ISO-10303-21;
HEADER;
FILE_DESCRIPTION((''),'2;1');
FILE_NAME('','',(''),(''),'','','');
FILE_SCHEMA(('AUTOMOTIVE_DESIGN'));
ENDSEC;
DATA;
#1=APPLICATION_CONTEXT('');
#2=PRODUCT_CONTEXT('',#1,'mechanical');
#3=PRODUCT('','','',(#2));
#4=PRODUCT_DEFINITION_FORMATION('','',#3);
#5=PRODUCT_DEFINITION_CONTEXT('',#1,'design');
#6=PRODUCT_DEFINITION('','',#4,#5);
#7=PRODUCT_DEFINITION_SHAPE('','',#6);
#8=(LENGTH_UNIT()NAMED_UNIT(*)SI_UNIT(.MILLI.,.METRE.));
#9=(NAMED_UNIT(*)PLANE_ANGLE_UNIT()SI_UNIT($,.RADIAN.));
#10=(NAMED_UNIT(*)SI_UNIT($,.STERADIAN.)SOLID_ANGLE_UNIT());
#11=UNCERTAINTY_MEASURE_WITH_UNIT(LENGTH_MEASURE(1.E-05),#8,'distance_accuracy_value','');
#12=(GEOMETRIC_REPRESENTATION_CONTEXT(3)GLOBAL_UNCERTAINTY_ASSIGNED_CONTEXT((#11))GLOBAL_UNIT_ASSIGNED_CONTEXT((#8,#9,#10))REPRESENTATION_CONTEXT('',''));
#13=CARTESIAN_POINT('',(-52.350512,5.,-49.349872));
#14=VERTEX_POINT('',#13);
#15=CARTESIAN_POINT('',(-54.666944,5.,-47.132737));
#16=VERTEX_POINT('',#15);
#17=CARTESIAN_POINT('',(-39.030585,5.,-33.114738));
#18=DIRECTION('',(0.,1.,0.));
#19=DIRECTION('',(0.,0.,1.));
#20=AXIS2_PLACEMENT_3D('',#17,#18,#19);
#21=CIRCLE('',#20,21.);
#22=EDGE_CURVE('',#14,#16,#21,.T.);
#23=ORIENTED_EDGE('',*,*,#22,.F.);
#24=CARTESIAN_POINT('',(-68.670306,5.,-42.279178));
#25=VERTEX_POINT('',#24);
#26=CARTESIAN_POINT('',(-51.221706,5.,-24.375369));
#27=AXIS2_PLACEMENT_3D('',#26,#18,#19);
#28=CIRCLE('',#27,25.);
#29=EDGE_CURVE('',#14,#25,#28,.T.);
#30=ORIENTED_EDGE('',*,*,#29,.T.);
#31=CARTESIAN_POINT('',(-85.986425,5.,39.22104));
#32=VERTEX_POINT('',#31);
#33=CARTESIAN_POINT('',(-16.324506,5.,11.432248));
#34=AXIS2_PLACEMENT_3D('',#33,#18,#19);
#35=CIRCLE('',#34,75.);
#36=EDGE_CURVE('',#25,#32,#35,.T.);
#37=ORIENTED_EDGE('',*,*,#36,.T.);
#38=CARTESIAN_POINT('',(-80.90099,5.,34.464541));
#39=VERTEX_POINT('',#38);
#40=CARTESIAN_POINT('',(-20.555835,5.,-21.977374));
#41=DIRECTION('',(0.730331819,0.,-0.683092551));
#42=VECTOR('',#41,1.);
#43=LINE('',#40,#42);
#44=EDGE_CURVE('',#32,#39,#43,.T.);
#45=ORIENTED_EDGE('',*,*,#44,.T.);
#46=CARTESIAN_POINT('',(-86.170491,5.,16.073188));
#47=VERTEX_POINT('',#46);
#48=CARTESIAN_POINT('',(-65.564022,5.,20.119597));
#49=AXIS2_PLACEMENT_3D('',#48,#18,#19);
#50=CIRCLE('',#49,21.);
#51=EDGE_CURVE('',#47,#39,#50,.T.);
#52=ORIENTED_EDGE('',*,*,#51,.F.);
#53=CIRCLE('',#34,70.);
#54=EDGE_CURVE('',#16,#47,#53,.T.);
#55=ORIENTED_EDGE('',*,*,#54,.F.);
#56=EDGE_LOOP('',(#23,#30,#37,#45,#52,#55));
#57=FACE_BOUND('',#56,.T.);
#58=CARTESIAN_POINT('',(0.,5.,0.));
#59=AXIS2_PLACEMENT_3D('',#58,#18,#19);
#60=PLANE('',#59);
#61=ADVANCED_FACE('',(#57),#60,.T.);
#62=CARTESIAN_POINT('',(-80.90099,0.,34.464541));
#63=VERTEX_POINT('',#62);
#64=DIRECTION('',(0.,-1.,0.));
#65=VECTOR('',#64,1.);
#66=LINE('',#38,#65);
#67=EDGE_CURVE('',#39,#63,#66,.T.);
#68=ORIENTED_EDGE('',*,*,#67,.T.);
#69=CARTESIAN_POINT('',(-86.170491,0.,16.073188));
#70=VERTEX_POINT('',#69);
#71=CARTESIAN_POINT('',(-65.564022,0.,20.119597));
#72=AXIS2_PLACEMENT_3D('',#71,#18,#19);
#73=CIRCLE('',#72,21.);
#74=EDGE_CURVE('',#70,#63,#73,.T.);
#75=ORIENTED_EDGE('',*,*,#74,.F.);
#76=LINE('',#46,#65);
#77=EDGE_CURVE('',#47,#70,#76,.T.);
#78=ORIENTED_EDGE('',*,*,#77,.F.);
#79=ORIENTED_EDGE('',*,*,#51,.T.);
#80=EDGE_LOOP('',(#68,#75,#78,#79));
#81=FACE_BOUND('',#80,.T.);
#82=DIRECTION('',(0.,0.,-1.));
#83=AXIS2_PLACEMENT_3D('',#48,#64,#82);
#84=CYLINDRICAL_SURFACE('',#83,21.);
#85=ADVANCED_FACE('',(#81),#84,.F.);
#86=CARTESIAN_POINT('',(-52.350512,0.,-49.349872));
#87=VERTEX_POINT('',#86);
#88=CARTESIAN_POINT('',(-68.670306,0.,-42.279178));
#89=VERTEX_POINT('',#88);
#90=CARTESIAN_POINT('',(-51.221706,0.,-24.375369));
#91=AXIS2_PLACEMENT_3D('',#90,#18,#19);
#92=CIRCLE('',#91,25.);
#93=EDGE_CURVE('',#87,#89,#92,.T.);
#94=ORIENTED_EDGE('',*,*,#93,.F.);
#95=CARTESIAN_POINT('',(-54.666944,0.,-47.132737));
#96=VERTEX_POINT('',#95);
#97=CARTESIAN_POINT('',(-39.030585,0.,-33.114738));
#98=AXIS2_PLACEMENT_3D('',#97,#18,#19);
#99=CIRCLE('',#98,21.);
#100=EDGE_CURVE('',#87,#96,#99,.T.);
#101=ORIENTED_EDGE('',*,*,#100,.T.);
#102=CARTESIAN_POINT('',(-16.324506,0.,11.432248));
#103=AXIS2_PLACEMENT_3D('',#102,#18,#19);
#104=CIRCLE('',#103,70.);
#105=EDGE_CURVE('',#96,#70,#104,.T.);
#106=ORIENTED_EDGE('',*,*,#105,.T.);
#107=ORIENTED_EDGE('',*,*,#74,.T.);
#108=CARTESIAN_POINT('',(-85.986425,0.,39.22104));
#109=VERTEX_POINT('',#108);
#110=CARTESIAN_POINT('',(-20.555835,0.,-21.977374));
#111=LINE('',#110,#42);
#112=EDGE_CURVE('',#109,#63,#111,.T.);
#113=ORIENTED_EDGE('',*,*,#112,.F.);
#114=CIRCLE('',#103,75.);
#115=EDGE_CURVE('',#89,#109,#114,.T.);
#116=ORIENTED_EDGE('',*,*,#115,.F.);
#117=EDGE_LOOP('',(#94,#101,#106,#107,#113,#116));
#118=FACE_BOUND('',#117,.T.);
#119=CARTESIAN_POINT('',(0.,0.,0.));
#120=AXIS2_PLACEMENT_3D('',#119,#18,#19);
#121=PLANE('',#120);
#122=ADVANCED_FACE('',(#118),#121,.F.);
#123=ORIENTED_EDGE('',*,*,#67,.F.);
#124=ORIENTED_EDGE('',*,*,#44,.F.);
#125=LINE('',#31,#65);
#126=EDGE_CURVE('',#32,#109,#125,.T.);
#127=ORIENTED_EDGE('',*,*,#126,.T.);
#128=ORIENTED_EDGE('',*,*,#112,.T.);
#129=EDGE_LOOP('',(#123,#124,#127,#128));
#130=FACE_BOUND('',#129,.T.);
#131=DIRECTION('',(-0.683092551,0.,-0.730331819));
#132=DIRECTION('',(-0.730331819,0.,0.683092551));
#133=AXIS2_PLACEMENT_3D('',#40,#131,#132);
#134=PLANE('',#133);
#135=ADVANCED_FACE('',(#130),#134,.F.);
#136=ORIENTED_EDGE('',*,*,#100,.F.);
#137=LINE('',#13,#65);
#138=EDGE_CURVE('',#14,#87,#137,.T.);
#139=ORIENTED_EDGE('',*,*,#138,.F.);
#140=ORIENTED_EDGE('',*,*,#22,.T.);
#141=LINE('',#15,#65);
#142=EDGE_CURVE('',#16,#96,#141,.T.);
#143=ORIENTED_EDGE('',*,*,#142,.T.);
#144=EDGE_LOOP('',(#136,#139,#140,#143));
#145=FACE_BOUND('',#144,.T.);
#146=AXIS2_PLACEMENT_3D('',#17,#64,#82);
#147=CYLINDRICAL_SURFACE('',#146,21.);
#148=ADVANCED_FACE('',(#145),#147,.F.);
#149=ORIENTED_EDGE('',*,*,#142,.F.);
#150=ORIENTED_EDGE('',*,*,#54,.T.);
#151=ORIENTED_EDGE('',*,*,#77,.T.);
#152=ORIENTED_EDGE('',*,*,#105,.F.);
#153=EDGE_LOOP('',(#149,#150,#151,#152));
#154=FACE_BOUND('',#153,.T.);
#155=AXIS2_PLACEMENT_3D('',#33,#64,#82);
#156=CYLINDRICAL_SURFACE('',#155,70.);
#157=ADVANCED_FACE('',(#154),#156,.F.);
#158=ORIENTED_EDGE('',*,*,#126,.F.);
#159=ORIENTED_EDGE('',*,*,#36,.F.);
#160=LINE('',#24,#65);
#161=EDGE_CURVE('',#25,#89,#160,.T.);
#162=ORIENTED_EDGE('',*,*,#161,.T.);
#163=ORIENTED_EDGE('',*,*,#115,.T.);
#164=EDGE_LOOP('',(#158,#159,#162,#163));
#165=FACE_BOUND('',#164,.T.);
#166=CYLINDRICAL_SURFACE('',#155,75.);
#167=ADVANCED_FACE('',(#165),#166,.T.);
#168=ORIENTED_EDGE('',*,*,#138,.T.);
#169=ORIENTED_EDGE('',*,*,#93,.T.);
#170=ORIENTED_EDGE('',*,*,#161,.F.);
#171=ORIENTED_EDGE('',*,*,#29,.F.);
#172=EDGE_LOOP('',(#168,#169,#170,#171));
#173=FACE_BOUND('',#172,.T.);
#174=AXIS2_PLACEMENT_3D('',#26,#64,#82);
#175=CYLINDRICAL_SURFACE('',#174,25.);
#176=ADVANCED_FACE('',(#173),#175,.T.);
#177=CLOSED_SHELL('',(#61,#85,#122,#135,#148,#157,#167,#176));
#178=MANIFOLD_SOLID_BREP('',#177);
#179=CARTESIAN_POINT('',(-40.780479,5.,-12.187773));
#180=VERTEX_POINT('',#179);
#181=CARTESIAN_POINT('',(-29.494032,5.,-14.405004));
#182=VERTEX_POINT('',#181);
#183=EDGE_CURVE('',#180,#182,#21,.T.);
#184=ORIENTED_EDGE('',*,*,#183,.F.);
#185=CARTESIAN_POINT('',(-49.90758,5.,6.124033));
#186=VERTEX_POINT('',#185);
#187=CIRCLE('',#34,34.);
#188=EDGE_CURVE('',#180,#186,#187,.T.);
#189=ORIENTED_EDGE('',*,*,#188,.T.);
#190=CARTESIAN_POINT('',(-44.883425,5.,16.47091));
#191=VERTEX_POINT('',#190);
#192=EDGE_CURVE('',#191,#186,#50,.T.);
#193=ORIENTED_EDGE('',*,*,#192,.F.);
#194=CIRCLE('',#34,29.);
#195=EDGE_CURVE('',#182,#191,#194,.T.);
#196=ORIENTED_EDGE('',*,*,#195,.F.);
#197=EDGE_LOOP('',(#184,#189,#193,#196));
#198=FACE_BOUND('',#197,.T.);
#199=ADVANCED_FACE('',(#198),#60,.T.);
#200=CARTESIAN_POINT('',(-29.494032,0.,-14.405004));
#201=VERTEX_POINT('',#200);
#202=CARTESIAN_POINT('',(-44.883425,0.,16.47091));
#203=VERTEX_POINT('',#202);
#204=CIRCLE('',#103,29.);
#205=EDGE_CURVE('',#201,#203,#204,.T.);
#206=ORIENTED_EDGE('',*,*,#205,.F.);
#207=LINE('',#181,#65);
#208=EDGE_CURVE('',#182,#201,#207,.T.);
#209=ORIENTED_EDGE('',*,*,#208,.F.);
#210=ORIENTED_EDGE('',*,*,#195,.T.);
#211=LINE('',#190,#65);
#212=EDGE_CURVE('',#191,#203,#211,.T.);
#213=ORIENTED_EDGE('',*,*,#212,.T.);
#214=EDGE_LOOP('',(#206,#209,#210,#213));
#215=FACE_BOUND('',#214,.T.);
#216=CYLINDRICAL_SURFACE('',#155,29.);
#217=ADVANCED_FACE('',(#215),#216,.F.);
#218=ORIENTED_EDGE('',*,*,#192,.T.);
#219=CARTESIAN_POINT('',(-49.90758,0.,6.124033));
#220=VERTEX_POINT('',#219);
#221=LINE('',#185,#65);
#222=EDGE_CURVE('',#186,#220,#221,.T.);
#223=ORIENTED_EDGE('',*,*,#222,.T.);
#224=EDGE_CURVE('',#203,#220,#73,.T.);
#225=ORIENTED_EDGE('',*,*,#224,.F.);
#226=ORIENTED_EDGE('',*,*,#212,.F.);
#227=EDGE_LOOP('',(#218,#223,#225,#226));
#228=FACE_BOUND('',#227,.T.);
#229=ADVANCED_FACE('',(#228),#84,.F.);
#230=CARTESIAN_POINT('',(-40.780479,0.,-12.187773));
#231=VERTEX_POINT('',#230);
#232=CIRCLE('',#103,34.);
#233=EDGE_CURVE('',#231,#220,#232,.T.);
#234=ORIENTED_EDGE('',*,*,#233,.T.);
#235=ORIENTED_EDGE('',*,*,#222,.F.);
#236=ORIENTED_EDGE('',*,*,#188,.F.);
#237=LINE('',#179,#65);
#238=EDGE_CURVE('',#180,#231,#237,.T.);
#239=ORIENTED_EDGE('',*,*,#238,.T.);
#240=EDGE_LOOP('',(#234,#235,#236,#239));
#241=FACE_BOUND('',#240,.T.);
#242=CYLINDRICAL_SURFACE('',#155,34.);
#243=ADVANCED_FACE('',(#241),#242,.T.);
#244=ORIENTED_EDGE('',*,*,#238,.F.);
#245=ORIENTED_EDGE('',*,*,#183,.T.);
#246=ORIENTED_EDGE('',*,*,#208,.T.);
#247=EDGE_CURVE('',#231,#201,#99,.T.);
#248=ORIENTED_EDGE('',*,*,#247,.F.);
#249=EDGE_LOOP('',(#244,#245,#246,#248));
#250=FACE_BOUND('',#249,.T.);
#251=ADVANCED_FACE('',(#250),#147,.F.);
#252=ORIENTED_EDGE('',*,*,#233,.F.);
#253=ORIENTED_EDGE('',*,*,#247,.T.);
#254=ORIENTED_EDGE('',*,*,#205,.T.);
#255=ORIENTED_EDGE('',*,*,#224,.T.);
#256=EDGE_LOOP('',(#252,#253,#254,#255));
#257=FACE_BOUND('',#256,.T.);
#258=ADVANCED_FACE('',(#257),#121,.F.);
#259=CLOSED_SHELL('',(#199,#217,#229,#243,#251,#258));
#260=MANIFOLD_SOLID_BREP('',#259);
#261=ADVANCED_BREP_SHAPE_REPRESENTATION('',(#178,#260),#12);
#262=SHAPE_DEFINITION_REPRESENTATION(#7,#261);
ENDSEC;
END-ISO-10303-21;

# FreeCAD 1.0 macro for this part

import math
import FreeCAD as App
import Part
import Sketcher

doc = App.newDocument("Part")
params = doc.addObject("Spreadsheet::Sheet", "Params")
for row, (alias, value) in enumerate([
    ("sketch1_radius", "75 mm"),
    ("sketch1_radius2", "21 mm"),
    ("sketch1_radius3", "70 mm"),
    ("sketch1_radius4", "25 mm"),
    ("pad1_length", "5 mm"),
    ("sketch2_radius", "34 mm"),
    ("sketch2_radius2", "21 mm"),
    ("sketch2_radius3", "29 mm"),
    ("pad2_length", "5 mm"),
], start=1):
    params.set(f"A{row}", alias)
    params.set(f"B{row}", "=" + value)
    params.setAlias(f"B{row}", alias)

body = doc.addObject("PartDesign::Body", "Body")

# Sketch on XZ plane
sketch1 = body.newObject("Sketcher::SketchObject", "Sketch")
sketch1.AttachmentSupport = (doc.getObject("XZ_Plane"), [""])
sketch1.MapMode = "FlatFace"
sketch1.addGeometry([
    Part.ArcOfCircle(Part.Circle(App.Vector(-16.324506, 11.432248, 0), App.Vector(0, 0, 1), 75), math.radians(158.25248), math.radians(225.737717)),  # 0
    Part.LineSegment(App.Vector(-85.986425, 39.22104, 0), App.Vector(-80.90099, 34.464541, 0)),  # 1
    Part.ArcOfCircle(Part.Circle(App.Vector(-65.564022, 20.119597, 0), App.Vector(0, 0, 1), 21), math.radians(136.914219), math.radians(191.109587)),  # 2
    Part.ArcOfCircle(Part.Circle(App.Vector(-16.324506, 11.432248, 0), App.Vector(0, 0, 1), 70), math.radians(176.19855), math.radians(236.787271)),  # 3
    Part.ArcOfCircle(Part.Circle(App.Vector(-39.030586, -33.114738, 0), App.Vector(0, 0, 1), 21), math.radians(-138.123766), math.radians(-129.366767)),  # 4
    Part.ArcOfCircle(Part.Circle(App.Vector(-51.221706, -24.375369, 0), App.Vector(0, 0, 1), 25), math.radians(-134.262283), math.radians(-92.587911)),  # 5
], False)
sketch1.addConstraint([
    Sketcher.Constraint("Coincident", 0, 1, 1, 1),
    Sketcher.Constraint("Coincident", 1, 2, 2, 1),
    Sketcher.Constraint("Coincident", 2, 2, 3, 1),
    Sketcher.Constraint("Coincident", 3, 2, 4, 1),
    Sketcher.Constraint("Coincident", 4, 2, 5, 2),
    Sketcher.Constraint("Tangent", 5, 1, 0, 2),
    Sketcher.Constraint("Coincident", 3, 3, 0, 3),
    Sketcher.Constraint("Equal", 2, 4),
    Sketcher.Constraint("Radius", 0, 75.0),
    Sketcher.Constraint("Radius", 2, 21.0),
    Sketcher.Constraint("Radius", 3, 70.0),
    Sketcher.Constraint("Radius", 5, 25.0),
    Sketcher.Constraint("DistanceY", 3, 2, 4, 3, 14.017999),
    Sketcher.Constraint("DistanceX", 5, 3, 3, 3, 34.8972),
    Sketcher.Constraint("DistanceY", 1, 2, 0, 1, 4.756499),
    Sketcher.Constraint("DistanceX", 2, 2, 1, 2, 5.269501),
    Sketcher.Constraint("DistanceY", 4, 3, -1, 1, 33.114738),
    Sketcher.Constraint("DistanceY", 5, 3, -1, 1, 24.375369),
    Sketcher.Constraint("DistanceY", -1, 1, 0, 1, 39.22104),
    Sketcher.Constraint("DistanceX", 1, 2, -1, 1, 80.90099),
    Sketcher.Constraint("DistanceX", 4, 2, -1, 1, 52.350512),
])
sketch1.setExpression("Constraints[8]", "Params.sketch1_radius")
sketch1.setExpression("Constraints[9]", "Params.sketch1_radius2")
sketch1.setExpression("Constraints[10]", "Params.sketch1_radius3")
sketch1.setExpression("Constraints[11]", "Params.sketch1_radius4")
pad1 = body.newObject("PartDesign::Pad", "Pad")
pad1.Profile = sketch1
pad1.setExpression("Length", "Params.pad1_length")
pad1.Reversed = True
body2 = doc.addObject("PartDesign::Body", "Body001")

# Sketch on XZ plane
sketch2 = body2.newObject("Sketcher::SketchObject", "Sketch001")
sketch2.AttachmentSupport = (doc.getObject("XZ_Plane001"), [""])
sketch2.MapMode = "FlatFace"
sketch2.addGeometry([
    Part.ArcOfCircle(Part.Circle(App.Vector(-16.324506, 11.432248, 0), App.Vector(0, 0, 1), 34), math.radians(-171.018012), math.radians(-135.996167)),
    Part.ArcOfCircle(Part.Circle(App.Vector(-65.564022, 20.119597, 0), App.Vector(0, 0, 1), 21), math.radians(-41.79408), math.radians(-10.005749)),
    Part.ArcOfCircle(Part.Circle(App.Vector(-16.324506, 11.432248, 0), App.Vector(0, 0, 1), 29), math.radians(169.994251), math.radians(242.99157)),
    Part.ArcOfCircle(Part.Circle(App.Vector(-39.030585, -33.114738, 0), App.Vector(0, 0, 1), 21), math.radians(62.99157), math.radians(94.779901)),
], False)
sketch2.addConstraint([
    Sketcher.Constraint("Coincident", 0, 1, 1, 1),
    Sketcher.Constraint("Tangent", 1, 2, 2, 1),
    Sketcher.Constraint("Tangent", 2, 2, 3, 1),
    Sketcher.Constraint("Coincident", 3, 2, 0, 2),
    Sketcher.Constraint("Coincident", 2, 3, 0, 3),
    Sketcher.Constraint("Equal", 1, 3),
    Sketcher.Constraint("Radius", 0, 34.0),
    Sketcher.Constraint("Radius", 1, 21.0),
    Sketcher.Constraint("Radius", 2, 29.0),
    Sketcher.Constraint("DistanceX", 0, 1, 3, 2, 9.127101),
    Sketcher.Constraint("DistanceY", 3, 3, -1, 1, 33.114738),
    Sketcher.Constraint("DistanceX", 0, 1, -1, 1, 49.90758),
    Sketcher.Constraint("DistanceY", -1, 1, 1, 2, 16.47091),
])
sketch2.setExpression("Constraints[6]", "Params.sketch2_radius")
sketch2.setExpression("Constraints[7]", "Params.sketch2_radius2")
sketch2.setExpression("Constraints[8]", "Params.sketch2_radius3")
pad2 = body2.newObject("PartDesign::Pad", "Pad001")
pad2.Profile = sketch2
pad2.setExpression("Length", "Params.pad2_length")
pad2.Reversed = True

doc.recompute()
